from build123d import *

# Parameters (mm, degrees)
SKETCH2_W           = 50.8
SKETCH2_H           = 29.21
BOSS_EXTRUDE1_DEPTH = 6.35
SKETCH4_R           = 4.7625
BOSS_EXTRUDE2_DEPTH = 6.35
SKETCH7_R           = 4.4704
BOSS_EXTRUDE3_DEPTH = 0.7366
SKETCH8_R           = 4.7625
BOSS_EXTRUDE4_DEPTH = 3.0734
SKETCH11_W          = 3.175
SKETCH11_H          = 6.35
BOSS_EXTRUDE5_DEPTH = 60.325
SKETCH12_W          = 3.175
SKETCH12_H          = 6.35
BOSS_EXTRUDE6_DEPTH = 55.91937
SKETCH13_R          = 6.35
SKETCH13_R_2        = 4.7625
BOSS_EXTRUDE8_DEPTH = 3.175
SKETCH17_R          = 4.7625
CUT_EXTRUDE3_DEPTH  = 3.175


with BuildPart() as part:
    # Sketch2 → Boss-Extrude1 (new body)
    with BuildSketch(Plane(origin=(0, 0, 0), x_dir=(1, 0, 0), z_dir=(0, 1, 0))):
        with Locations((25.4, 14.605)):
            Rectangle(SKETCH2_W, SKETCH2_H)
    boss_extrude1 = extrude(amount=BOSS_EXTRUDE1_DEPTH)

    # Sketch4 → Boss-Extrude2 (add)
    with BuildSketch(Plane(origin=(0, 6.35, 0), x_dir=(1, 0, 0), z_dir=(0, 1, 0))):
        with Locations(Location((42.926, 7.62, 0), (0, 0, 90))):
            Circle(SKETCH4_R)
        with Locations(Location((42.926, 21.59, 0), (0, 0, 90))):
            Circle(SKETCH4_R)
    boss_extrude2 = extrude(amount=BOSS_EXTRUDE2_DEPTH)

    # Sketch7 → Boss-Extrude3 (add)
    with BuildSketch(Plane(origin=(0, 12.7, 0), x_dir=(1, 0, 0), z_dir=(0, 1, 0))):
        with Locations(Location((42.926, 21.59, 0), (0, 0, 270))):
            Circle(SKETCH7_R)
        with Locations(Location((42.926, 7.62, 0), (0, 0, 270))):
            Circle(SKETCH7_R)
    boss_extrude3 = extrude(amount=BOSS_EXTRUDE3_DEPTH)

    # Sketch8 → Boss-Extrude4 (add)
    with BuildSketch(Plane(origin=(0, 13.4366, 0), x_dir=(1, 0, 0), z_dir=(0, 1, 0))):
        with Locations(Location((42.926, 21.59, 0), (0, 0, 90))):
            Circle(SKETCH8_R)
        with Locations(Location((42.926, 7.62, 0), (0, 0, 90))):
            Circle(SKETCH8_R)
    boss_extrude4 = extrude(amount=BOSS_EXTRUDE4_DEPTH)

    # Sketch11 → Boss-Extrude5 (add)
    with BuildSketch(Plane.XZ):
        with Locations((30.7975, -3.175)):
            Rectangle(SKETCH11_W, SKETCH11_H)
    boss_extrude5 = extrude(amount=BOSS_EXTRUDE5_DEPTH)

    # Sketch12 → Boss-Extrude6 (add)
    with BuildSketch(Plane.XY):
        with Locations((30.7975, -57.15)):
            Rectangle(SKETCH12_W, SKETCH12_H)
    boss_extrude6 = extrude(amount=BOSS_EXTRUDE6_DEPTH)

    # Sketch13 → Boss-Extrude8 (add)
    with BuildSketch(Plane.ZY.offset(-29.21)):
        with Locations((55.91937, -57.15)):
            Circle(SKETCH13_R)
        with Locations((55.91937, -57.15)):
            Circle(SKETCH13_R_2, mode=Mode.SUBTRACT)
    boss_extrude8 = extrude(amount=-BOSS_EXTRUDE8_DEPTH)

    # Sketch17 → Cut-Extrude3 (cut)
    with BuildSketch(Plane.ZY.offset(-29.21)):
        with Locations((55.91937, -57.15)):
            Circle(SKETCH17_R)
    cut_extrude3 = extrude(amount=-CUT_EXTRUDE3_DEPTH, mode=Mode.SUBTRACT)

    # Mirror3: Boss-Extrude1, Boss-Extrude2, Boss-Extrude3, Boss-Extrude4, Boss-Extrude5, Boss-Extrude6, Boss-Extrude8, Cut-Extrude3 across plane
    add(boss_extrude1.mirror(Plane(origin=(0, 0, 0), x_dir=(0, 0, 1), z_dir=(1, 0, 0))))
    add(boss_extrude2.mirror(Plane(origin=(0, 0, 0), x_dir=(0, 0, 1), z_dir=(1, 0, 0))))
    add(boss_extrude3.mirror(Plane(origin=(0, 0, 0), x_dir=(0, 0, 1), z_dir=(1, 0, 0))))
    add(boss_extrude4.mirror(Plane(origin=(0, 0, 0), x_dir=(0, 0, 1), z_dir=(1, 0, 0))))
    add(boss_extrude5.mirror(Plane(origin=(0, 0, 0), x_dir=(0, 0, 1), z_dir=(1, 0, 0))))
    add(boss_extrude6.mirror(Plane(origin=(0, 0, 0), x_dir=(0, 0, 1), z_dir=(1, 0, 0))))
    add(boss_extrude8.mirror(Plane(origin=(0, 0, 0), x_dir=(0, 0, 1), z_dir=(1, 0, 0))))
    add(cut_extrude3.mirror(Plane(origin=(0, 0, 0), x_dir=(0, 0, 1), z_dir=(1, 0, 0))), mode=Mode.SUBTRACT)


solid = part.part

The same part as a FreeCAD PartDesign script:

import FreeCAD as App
import Part
import Sketcher
Q = App.Units.Quantity

doc = App.newDocument("Part")
body = doc.addObject("PartDesign::Body", "Body")

# Sketch on XZ plane
sketch1 = body.newObject("Sketcher::SketchObject", "Sketch")
sketch1.AttachmentSupport = (doc.getObject("XZ_Plane"), [""])
sketch1.MapMode = "FlatFace"
sketch1.addGeometry([
    Part.LineSegment(App.Vector(0, -29.21, 0), App.Vector(0, 0, 0)),
    Part.LineSegment(App.Vector(0, 0, 0), App.Vector(50.8, 0, 0)),
    Part.LineSegment(App.Vector(50.8, 0, 0), App.Vector(50.8, -29.21, 0)),
    Part.LineSegment(App.Vector(50.8, -29.21, 0), App.Vector(0, -29.21, 0)),
], False)
sketch1.addConstraint([
    Sketcher.Constraint("Coincident", 0, 2, 1, 1),
    Sketcher.Constraint("Coincident", 1, 2, 2, 1),
    Sketcher.Constraint("Coincident", 2, 2, 3, 1),
    Sketcher.Constraint("Coincident", 3, 2, 0, 1),
    Sketcher.Constraint("Vertical", 0),
    Sketcher.Constraint("Horizontal", 1),
    Sketcher.Constraint("Vertical", 2),
    Sketcher.Constraint("Horizontal", 3),
    Sketcher.Constraint("Coincident", 0, 2, -1, 1),
    Sketcher.Constraint("DistanceX", 1, 1, 1, 2, Q("2 in")),
    Sketcher.Constraint("DistanceY", 0, 1, 0, 2, Q("1.15 in")),
])
pad1 = body.newObject("PartDesign::Pad", "Pad")
pad1.Profile = sketch1
pad1.Length = Q("0.25 in")
pad1.Reversed = True

# Sketch on XZ plane
sketch2 = body.newObject("Sketcher::SketchObject", "Sketch001")
sketch2.AttachmentSupport = (doc.getObject("XZ_Plane"), [""])
sketch2.MapMode = "FlatFace"
sketch2.AttachmentOffset = App.Placement(App.Vector(0, 0, -0.25 * 25.4), App.Rotation())
sketch2.addGeometry([
    Part.Circle(App.Vector(42.926, -7.62, 0), App.Vector(0, 0, 1), 4.7625),
    Part.Circle(App.Vector(42.926, -21.59, 0), App.Vector(0, 0, 1), 4.7625),
], False)
sketch2.addConstraint([
    Sketcher.Constraint("Equal", 0, 1),
    Sketcher.Constraint("Vertical", 0, 3, 1, 3),
    Sketcher.Constraint("Diameter", 0, Q("0.375 in")),
    Sketcher.Constraint("DistanceY", 0, 3, -1, 1, Q("0.3 in")),
    Sketcher.Constraint("DistanceX", -1, 1, 0, 3, Q("1.69 in")),
    Sketcher.Constraint("DistanceY", 1, 3, -1, 1, Q("0.85 in")),
])
pad2 = body.newObject("PartDesign::Pad", "Pad001")
pad2.Profile = sketch2
pad2.Length = Q("0.25 in")
pad2.Reversed = True

# Sketch on XZ plane
sketch3 = body.newObject("Sketcher::SketchObject", "Sketch002")
sketch3.AttachmentSupport = (doc.getObject("XZ_Plane"), [""])
sketch3.MapMode = "FlatFace"
sketch3.AttachmentOffset = App.Placement(App.Vector(0, 0, -0.5 * 25.4), App.Rotation())
sketch3.addGeometry([
    Part.Circle(App.Vector(42.926, -21.59, 0), App.Vector(0, 0, 1), 4.4704),
    Part.Circle(App.Vector(42.926, -7.62, 0), App.Vector(0, 0, 1), 4.4704),
], False)
sketch3.addConstraint([
    Sketcher.Constraint("Equal", 0, 1),
    Sketcher.Constraint("Vertical", 0, 3, 1, 3),
    Sketcher.Constraint("Diameter", 0, Q("0.352 in")),
    Sketcher.Constraint("DistanceY", 1, 3, -1, 1, Q("0.3 in")),
    Sketcher.Constraint("DistanceX", -1, 1, 0, 3, Q("1.69 in")),
    Sketcher.Constraint("DistanceY", 0, 3, -1, 1, Q("0.85 in")),
])
pad3 = body.newObject("PartDesign::Pad", "Pad002")
pad3.Profile = sketch3
pad3.Length = Q("0.029 in")
pad3.Reversed = True

# Sketch on XZ plane
sketch4 = body.newObject("Sketcher::SketchObject", "Sketch003")
sketch4.AttachmentSupport = (doc.getObject("XZ_Plane"), [""])
sketch4.MapMode = "FlatFace"
sketch4.AttachmentOffset = App.Placement(App.Vector(0, 0, -0.529 * 25.4), App.Rotation())
sketch4.addGeometry([
    Part.Circle(App.Vector(42.926, -21.59, 0), App.Vector(0, 0, 1), 4.7625),
    Part.Circle(App.Vector(42.926, -7.62, 0), App.Vector(0, 0, 1), 4.7625),
], False)
sketch4.addConstraint([
    Sketcher.Constraint("Equal", 0, 1),
    Sketcher.Constraint("Vertical", 0, 3, 1, 3),
    Sketcher.Constraint("Diameter", 0, Q("0.375 in")),
    Sketcher.Constraint("DistanceY", 1, 3, -1, 1, Q("0.3 in")),
    Sketcher.Constraint("DistanceX", -1, 1, 0, 3, Q("1.69 in")),
    Sketcher.Constraint("DistanceY", 0, 3, -1, 1, Q("0.85 in")),
])
pad4 = body.newObject("PartDesign::Pad", "Pad003")
pad4.Profile = sketch4
pad4.Length = Q("0.121 in")
pad4.Reversed = True

# Sketch on XZ plane
sketch5 = body.newObject("Sketcher::SketchObject", "Sketch004")
sketch5.AttachmentSupport = (doc.getObject("XZ_Plane"), [""])
sketch5.MapMode = "FlatFace"
sketch5.addGeometry([
    Part.LineSegment(App.Vector(29.21, 0, 0), App.Vector(29.21, -6.35, 0)),
    Part.LineSegment(App.Vector(29.21, -6.35, 0), App.Vector(32.385, -6.35, 0)),
    Part.LineSegment(App.Vector(32.385, -6.35, 0), App.Vector(32.385, 0, 0)),
    Part.LineSegment(App.Vector(32.385, 0, 0), App.Vector(29.21, 0, 0)),
], False)
sketch5.addConstraint([
    Sketcher.Constraint("Coincident", 0, 2, 1, 1),
    Sketcher.Constraint("Coincident", 1, 2, 2, 1),
    Sketcher.Constraint("Coincident", 2, 2, 3, 1),
    Sketcher.Constraint("Coincident", 3, 2, 0, 1),
    Sketcher.Constraint("Vertical", 0),
    Sketcher.Constraint("Horizontal", 1),
    Sketcher.Constraint("Vertical", 2),
    Sketcher.Constraint("Horizontal", 3),
    Sketcher.Constraint("PointOnObject", 2, 2, -1),
    Sketcher.Constraint("DistanceY", 0, 2, 0, 1, Q("0.25 in")),
    Sketcher.Constraint("DistanceX", 1, 1, 1, 2, Q("0.125 in")),
    Sketcher.Constraint("DistanceX", -1, 1, 0, 2, Q("1.15 in")),
])
pad5 = body.newObject("PartDesign::Pad", "Pad004")
pad5.Profile = sketch5
pad5.Length = Q("2.375 in")

# Sketch on XY plane
sketch6 = body.newObject("Sketcher::SketchObject", "Sketch005")
sketch6.AttachmentSupport = (doc.getObject("XY_Plane"), [""])
sketch6.MapMode = "FlatFace"
sketch6.addGeometry([
    Part.LineSegment(App.Vector(29.21, -53.975, 0), App.Vector(29.21, -60.325, 0)),
    Part.LineSegment(App.Vector(29.21, -60.325, 0), App.Vector(32.385, -60.325, 0)),
    Part.LineSegment(App.Vector(32.385, -60.325, 0), App.Vector(32.385, -53.975, 0)),
    Part.LineSegment(App.Vector(32.385, -53.975, 0), App.Vector(29.21, -53.975, 0)),
], False)
sketch6.addConstraint([
    Sketcher.Constraint("Coincident", 0, 2, 1, 1),
    Sketcher.Constraint("Coincident", 1, 2, 2, 1),
    Sketcher.Constraint("Coincident", 2, 2, 3, 1),
    Sketcher.Constraint("Coincident", 3, 2, 0, 1),
    Sketcher.Constraint("Vertical", 0),
    Sketcher.Constraint("Horizontal", 1),
    Sketcher.Constraint("Vertical", 2),
    Sketcher.Constraint("Horizontal", 3),
    Sketcher.Constraint("DistanceY", 0, 2, 0, 1, Q("0.25 in")),
    Sketcher.Constraint("DistanceX", 1, 1, 1, 2, Q("0.125 in")),
    Sketcher.Constraint("DistanceX", -1, 1, 0, 2, Q("1.15 in")),
    Sketcher.Constraint("DistanceY", 0, 2, -1, 1, Q("2.375 in")),
])
pad6 = body.newObject("PartDesign::Pad", "Pad005")
pad6.Profile = sketch6
pad6.Length = 55.91937

# Sketch on YZ plane
sketch7 = body.newObject("Sketcher::SketchObject", "Sketch006")
sketch7.AttachmentSupport = (doc.getObject("YZ_Plane"), [""])
sketch7.MapMode = "FlatFace"
sketch7.AttachmentOffset = App.Placement(App.Vector(0, 0, 1.15 * 25.4), App.Rotation())
sketch7.addGeometry([
    Part.Circle(App.Vector(-57.15, 55.91937, 0), App.Vector(0, 0, 1), 6.35),
    Part.Circle(App.Vector(-57.15, 55.91937, 0), App.Vector(0, 0, 1), 4.7625),
], False)
sketch7.addConstraint([
    Sketcher.Constraint("Coincident", 1, 3, 0, 3),
    Sketcher.Constraint("Diameter", 0, Q("0.5 in")),
    Sketcher.Constraint("Diameter", 1, Q("0.375 in")),
    Sketcher.Constraint("DistanceX", 0, 3, -1, 1, Q("2.25 in")),
    Sketcher.Constraint("DistanceY", -1, 1, 0, 3, Q("55.91937 mm")),
])
pad7 = body.newObject("PartDesign::Pad", "Pad006")
pad7.Profile = sketch7
pad7.Length = Q("0.125 in")

# Sketch on YZ plane
sketch8 = body.newObject("Sketcher::SketchObject", "Sketch007")
sketch8.AttachmentSupport = (doc.getObject("YZ_Plane"), [""])
sketch8.MapMode = "FlatFace"
sketch8.AttachmentOffset = App.Placement(App.Vector(0, 0, 1.15 * 25.4), App.Rotation())
sketch8.addGeometry(Part.Circle(App.Vector(-57.15, 55.91937, 0), App.Vector(0, 0, 1), 4.7625), False)
sketch8.addConstraint([
    Sketcher.Constraint("Diameter", 0, Q("0.375 in")),
    Sketcher.Constraint("DistanceX", 0, 3, -1, 1, Q("2.25 in")),
    Sketcher.Constraint("DistanceY", -1, 1, 0, 3, Q("55.91937 mm")),
])
pocket1 = body.newObject("PartDesign::Pocket", "Pocket")
pocket1.Profile = sketch8
pocket1.Length = Q("0.125 in")
pocket1.Reversed = True
doc.recompute()

mirrored = body.newObject("PartDesign::Mirrored", "Mirrored")
mirrored.Originals = [pad1, pad2, pad3, pad4, pad5, pad6, pad7, pocket1]
mirrored.MirrorPlane = (doc.getObject("YZ_Plane"), [""])
body.Tip = mirrored

doc.recompute()
